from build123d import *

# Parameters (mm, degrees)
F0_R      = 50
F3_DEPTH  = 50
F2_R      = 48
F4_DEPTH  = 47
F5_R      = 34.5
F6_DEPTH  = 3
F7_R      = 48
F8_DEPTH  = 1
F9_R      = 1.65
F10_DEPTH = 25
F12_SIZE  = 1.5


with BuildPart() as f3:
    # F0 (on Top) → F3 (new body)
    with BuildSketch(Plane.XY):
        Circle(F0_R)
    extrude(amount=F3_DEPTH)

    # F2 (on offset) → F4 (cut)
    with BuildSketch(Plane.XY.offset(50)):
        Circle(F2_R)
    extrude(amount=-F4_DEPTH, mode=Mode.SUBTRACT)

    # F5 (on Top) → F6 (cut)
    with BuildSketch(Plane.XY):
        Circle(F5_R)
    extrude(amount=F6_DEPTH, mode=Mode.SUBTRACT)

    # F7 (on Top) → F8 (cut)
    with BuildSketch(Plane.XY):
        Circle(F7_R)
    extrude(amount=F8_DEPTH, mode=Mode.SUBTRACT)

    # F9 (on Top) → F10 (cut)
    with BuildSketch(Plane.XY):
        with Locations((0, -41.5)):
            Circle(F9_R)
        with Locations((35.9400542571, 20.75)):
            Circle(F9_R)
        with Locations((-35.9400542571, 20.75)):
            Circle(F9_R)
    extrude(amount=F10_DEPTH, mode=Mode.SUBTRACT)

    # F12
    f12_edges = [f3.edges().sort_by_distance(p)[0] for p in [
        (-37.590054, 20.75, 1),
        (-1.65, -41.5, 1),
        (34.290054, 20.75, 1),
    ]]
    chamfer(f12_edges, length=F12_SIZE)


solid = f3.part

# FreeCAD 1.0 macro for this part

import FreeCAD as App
import Part
import Sketcher

V = App.Vector
Q = App.Units.Quantity


def edges_at(feature, points):
    """Names of the edges that pass closest to the given points."""
    edges = feature.Shape.Edges
    near = lambda p: min(range(len(edges)), key=lambda i: edges[i].distToShape(Part.Vertex(*p))[0])
    return sorted({f"Edge{near(p) + 1}" for p in points})

doc = App.newDocument("Part")
body = doc.addObject("PartDesign::Body", "Body")

sketch1 = body.newObject("Sketcher::SketchObject", "Sketch")
sketch1.AttachmentSupport = (doc.getObject("XY_Plane"), [""])
sketch1.MapMode = "FlatFace"
sketch1.addGeometry(Part.Circle(V(0, 0, 0), V(0, 0, 1), 50), False)
sketch1.addConstraint([
    Sketcher.Constraint("Coincident", 0, 3, -1, 1),
    Sketcher.Constraint("Diameter", 0, Q("100 mm")),
])
pad1 = body.newObject("PartDesign::Pad", "Pad")
pad1.Profile = sketch1
pad1.Length = 50

sketch2 = body.newObject("Sketcher::SketchObject", "Sketch001")
sketch2.AttachmentSupport = (doc.getObject("XY_Plane"), [""])
sketch2.MapMode = "FlatFace"
sketch2.AttachmentOffset = App.Placement(V(0, 0, 50), App.Rotation())
sketch2.addGeometry(Part.Circle(V(0, 0, 0), V(0, 0, 1), 48), False)
sketch2.addConstraint([
    Sketcher.Constraint("Coincident", 0, 3, -1, 1),
    Sketcher.Constraint("Diameter", 0, Q("96 mm")),
])
pocket1 = body.newObject("PartDesign::Pocket", "Pocket")
pocket1.Profile = sketch2
pocket1.Length = 47

sketch3 = body.newObject("Sketcher::SketchObject", "Sketch002")
sketch3.AttachmentSupport = (doc.getObject("XY_Plane"), [""])
sketch3.MapMode = "FlatFace"
sketch3.addGeometry(Part.Circle(V(0, 0, 0), V(0, 0, 1), 34), False)
sketch3.addConstraint([
    Sketcher.Constraint("Coincident", 0, 3, -1, 1),
    Sketcher.Constraint("Diameter", 0, Q("69 mm")),
])
pocket2 = body.newObject("PartDesign::Pocket", "Pocket001")
pocket2.Profile = sketch3
pocket2.Length = 3
pocket2.Reversed = True

sketch4 = body.newObject("Sketcher::SketchObject", "Sketch003")
sketch4.AttachmentSupport = (doc.getObject("XY_Plane"), [""])
sketch4.MapMode = "FlatFace"
sketch4.addGeometry(Part.Circle(V(0, 0, 0), V(0, 0, 1), 48), False)
sketch4.addConstraint([
    Sketcher.Constraint("Coincident", 0, 3, -1, 1),
    Sketcher.Constraint("Diameter", 0, Q("96 mm")),
])
pocket3 = body.newObject("PartDesign::Pocket", "Pocket002")
pocket3.Profile = sketch4
pocket3.Length = 1
pocket3.Reversed = True

sketch5 = body.newObject("Sketcher::SketchObject", "Sketch004")
sketch5.AttachmentSupport = (doc.getObject("XY_Plane"), [""])
sketch5.MapMode = "FlatFace"
sketch5.addGeometry([
    Part.Circle(V(0, -41.5, 0), V(0, 0, 1), 1.6),
    Part.Circle(V(35.9, 20.8, 0), V(0, 0, 1), 1.6),
    Part.Circle(V(-35.9, 20.8, 0), V(0, 0, 1), 1.6),
], False)
sketch5.addConstraint([
    Sketcher.Constraint("Equal", 0, 1),
    Sketcher.Constraint("Equal", 1, 2),
    Sketcher.Constraint("Symmetric", 1, 3, 2, 3, -2),
    Sketcher.Constraint("PointOnObject", 0, 3, -2),
    Sketcher.Constraint("Diameter", 0, Q("3.3 mm")),
    Sketcher.Constraint("DistanceY", 0, 3, -1, 1, Q("41.5 mm")),
    Sketcher.Constraint("DistanceY", -1, 1, 1, 3, Q("20.75 mm")),
    Sketcher.Constraint("DistanceX", 2, 3, 1, 3, Q("71.880109 mm")),
])
pocket4 = body.newObject("PartDesign::Pocket", "Pocket003")
pocket4.Profile = sketch5
pocket4.Length = 25
pocket4.Reversed = True
doc.recompute()

chamfer = body.newObject("PartDesign::Chamfer", "Chamfer")
chamfer.Base = (pocket4, edges_at(pocket4, [(-37.59, 20.75, 1), (-1.65, -41.5, 1), (34.29, 20.75, 1)]))
chamfer.Size = 1.5

doc.recompute()
